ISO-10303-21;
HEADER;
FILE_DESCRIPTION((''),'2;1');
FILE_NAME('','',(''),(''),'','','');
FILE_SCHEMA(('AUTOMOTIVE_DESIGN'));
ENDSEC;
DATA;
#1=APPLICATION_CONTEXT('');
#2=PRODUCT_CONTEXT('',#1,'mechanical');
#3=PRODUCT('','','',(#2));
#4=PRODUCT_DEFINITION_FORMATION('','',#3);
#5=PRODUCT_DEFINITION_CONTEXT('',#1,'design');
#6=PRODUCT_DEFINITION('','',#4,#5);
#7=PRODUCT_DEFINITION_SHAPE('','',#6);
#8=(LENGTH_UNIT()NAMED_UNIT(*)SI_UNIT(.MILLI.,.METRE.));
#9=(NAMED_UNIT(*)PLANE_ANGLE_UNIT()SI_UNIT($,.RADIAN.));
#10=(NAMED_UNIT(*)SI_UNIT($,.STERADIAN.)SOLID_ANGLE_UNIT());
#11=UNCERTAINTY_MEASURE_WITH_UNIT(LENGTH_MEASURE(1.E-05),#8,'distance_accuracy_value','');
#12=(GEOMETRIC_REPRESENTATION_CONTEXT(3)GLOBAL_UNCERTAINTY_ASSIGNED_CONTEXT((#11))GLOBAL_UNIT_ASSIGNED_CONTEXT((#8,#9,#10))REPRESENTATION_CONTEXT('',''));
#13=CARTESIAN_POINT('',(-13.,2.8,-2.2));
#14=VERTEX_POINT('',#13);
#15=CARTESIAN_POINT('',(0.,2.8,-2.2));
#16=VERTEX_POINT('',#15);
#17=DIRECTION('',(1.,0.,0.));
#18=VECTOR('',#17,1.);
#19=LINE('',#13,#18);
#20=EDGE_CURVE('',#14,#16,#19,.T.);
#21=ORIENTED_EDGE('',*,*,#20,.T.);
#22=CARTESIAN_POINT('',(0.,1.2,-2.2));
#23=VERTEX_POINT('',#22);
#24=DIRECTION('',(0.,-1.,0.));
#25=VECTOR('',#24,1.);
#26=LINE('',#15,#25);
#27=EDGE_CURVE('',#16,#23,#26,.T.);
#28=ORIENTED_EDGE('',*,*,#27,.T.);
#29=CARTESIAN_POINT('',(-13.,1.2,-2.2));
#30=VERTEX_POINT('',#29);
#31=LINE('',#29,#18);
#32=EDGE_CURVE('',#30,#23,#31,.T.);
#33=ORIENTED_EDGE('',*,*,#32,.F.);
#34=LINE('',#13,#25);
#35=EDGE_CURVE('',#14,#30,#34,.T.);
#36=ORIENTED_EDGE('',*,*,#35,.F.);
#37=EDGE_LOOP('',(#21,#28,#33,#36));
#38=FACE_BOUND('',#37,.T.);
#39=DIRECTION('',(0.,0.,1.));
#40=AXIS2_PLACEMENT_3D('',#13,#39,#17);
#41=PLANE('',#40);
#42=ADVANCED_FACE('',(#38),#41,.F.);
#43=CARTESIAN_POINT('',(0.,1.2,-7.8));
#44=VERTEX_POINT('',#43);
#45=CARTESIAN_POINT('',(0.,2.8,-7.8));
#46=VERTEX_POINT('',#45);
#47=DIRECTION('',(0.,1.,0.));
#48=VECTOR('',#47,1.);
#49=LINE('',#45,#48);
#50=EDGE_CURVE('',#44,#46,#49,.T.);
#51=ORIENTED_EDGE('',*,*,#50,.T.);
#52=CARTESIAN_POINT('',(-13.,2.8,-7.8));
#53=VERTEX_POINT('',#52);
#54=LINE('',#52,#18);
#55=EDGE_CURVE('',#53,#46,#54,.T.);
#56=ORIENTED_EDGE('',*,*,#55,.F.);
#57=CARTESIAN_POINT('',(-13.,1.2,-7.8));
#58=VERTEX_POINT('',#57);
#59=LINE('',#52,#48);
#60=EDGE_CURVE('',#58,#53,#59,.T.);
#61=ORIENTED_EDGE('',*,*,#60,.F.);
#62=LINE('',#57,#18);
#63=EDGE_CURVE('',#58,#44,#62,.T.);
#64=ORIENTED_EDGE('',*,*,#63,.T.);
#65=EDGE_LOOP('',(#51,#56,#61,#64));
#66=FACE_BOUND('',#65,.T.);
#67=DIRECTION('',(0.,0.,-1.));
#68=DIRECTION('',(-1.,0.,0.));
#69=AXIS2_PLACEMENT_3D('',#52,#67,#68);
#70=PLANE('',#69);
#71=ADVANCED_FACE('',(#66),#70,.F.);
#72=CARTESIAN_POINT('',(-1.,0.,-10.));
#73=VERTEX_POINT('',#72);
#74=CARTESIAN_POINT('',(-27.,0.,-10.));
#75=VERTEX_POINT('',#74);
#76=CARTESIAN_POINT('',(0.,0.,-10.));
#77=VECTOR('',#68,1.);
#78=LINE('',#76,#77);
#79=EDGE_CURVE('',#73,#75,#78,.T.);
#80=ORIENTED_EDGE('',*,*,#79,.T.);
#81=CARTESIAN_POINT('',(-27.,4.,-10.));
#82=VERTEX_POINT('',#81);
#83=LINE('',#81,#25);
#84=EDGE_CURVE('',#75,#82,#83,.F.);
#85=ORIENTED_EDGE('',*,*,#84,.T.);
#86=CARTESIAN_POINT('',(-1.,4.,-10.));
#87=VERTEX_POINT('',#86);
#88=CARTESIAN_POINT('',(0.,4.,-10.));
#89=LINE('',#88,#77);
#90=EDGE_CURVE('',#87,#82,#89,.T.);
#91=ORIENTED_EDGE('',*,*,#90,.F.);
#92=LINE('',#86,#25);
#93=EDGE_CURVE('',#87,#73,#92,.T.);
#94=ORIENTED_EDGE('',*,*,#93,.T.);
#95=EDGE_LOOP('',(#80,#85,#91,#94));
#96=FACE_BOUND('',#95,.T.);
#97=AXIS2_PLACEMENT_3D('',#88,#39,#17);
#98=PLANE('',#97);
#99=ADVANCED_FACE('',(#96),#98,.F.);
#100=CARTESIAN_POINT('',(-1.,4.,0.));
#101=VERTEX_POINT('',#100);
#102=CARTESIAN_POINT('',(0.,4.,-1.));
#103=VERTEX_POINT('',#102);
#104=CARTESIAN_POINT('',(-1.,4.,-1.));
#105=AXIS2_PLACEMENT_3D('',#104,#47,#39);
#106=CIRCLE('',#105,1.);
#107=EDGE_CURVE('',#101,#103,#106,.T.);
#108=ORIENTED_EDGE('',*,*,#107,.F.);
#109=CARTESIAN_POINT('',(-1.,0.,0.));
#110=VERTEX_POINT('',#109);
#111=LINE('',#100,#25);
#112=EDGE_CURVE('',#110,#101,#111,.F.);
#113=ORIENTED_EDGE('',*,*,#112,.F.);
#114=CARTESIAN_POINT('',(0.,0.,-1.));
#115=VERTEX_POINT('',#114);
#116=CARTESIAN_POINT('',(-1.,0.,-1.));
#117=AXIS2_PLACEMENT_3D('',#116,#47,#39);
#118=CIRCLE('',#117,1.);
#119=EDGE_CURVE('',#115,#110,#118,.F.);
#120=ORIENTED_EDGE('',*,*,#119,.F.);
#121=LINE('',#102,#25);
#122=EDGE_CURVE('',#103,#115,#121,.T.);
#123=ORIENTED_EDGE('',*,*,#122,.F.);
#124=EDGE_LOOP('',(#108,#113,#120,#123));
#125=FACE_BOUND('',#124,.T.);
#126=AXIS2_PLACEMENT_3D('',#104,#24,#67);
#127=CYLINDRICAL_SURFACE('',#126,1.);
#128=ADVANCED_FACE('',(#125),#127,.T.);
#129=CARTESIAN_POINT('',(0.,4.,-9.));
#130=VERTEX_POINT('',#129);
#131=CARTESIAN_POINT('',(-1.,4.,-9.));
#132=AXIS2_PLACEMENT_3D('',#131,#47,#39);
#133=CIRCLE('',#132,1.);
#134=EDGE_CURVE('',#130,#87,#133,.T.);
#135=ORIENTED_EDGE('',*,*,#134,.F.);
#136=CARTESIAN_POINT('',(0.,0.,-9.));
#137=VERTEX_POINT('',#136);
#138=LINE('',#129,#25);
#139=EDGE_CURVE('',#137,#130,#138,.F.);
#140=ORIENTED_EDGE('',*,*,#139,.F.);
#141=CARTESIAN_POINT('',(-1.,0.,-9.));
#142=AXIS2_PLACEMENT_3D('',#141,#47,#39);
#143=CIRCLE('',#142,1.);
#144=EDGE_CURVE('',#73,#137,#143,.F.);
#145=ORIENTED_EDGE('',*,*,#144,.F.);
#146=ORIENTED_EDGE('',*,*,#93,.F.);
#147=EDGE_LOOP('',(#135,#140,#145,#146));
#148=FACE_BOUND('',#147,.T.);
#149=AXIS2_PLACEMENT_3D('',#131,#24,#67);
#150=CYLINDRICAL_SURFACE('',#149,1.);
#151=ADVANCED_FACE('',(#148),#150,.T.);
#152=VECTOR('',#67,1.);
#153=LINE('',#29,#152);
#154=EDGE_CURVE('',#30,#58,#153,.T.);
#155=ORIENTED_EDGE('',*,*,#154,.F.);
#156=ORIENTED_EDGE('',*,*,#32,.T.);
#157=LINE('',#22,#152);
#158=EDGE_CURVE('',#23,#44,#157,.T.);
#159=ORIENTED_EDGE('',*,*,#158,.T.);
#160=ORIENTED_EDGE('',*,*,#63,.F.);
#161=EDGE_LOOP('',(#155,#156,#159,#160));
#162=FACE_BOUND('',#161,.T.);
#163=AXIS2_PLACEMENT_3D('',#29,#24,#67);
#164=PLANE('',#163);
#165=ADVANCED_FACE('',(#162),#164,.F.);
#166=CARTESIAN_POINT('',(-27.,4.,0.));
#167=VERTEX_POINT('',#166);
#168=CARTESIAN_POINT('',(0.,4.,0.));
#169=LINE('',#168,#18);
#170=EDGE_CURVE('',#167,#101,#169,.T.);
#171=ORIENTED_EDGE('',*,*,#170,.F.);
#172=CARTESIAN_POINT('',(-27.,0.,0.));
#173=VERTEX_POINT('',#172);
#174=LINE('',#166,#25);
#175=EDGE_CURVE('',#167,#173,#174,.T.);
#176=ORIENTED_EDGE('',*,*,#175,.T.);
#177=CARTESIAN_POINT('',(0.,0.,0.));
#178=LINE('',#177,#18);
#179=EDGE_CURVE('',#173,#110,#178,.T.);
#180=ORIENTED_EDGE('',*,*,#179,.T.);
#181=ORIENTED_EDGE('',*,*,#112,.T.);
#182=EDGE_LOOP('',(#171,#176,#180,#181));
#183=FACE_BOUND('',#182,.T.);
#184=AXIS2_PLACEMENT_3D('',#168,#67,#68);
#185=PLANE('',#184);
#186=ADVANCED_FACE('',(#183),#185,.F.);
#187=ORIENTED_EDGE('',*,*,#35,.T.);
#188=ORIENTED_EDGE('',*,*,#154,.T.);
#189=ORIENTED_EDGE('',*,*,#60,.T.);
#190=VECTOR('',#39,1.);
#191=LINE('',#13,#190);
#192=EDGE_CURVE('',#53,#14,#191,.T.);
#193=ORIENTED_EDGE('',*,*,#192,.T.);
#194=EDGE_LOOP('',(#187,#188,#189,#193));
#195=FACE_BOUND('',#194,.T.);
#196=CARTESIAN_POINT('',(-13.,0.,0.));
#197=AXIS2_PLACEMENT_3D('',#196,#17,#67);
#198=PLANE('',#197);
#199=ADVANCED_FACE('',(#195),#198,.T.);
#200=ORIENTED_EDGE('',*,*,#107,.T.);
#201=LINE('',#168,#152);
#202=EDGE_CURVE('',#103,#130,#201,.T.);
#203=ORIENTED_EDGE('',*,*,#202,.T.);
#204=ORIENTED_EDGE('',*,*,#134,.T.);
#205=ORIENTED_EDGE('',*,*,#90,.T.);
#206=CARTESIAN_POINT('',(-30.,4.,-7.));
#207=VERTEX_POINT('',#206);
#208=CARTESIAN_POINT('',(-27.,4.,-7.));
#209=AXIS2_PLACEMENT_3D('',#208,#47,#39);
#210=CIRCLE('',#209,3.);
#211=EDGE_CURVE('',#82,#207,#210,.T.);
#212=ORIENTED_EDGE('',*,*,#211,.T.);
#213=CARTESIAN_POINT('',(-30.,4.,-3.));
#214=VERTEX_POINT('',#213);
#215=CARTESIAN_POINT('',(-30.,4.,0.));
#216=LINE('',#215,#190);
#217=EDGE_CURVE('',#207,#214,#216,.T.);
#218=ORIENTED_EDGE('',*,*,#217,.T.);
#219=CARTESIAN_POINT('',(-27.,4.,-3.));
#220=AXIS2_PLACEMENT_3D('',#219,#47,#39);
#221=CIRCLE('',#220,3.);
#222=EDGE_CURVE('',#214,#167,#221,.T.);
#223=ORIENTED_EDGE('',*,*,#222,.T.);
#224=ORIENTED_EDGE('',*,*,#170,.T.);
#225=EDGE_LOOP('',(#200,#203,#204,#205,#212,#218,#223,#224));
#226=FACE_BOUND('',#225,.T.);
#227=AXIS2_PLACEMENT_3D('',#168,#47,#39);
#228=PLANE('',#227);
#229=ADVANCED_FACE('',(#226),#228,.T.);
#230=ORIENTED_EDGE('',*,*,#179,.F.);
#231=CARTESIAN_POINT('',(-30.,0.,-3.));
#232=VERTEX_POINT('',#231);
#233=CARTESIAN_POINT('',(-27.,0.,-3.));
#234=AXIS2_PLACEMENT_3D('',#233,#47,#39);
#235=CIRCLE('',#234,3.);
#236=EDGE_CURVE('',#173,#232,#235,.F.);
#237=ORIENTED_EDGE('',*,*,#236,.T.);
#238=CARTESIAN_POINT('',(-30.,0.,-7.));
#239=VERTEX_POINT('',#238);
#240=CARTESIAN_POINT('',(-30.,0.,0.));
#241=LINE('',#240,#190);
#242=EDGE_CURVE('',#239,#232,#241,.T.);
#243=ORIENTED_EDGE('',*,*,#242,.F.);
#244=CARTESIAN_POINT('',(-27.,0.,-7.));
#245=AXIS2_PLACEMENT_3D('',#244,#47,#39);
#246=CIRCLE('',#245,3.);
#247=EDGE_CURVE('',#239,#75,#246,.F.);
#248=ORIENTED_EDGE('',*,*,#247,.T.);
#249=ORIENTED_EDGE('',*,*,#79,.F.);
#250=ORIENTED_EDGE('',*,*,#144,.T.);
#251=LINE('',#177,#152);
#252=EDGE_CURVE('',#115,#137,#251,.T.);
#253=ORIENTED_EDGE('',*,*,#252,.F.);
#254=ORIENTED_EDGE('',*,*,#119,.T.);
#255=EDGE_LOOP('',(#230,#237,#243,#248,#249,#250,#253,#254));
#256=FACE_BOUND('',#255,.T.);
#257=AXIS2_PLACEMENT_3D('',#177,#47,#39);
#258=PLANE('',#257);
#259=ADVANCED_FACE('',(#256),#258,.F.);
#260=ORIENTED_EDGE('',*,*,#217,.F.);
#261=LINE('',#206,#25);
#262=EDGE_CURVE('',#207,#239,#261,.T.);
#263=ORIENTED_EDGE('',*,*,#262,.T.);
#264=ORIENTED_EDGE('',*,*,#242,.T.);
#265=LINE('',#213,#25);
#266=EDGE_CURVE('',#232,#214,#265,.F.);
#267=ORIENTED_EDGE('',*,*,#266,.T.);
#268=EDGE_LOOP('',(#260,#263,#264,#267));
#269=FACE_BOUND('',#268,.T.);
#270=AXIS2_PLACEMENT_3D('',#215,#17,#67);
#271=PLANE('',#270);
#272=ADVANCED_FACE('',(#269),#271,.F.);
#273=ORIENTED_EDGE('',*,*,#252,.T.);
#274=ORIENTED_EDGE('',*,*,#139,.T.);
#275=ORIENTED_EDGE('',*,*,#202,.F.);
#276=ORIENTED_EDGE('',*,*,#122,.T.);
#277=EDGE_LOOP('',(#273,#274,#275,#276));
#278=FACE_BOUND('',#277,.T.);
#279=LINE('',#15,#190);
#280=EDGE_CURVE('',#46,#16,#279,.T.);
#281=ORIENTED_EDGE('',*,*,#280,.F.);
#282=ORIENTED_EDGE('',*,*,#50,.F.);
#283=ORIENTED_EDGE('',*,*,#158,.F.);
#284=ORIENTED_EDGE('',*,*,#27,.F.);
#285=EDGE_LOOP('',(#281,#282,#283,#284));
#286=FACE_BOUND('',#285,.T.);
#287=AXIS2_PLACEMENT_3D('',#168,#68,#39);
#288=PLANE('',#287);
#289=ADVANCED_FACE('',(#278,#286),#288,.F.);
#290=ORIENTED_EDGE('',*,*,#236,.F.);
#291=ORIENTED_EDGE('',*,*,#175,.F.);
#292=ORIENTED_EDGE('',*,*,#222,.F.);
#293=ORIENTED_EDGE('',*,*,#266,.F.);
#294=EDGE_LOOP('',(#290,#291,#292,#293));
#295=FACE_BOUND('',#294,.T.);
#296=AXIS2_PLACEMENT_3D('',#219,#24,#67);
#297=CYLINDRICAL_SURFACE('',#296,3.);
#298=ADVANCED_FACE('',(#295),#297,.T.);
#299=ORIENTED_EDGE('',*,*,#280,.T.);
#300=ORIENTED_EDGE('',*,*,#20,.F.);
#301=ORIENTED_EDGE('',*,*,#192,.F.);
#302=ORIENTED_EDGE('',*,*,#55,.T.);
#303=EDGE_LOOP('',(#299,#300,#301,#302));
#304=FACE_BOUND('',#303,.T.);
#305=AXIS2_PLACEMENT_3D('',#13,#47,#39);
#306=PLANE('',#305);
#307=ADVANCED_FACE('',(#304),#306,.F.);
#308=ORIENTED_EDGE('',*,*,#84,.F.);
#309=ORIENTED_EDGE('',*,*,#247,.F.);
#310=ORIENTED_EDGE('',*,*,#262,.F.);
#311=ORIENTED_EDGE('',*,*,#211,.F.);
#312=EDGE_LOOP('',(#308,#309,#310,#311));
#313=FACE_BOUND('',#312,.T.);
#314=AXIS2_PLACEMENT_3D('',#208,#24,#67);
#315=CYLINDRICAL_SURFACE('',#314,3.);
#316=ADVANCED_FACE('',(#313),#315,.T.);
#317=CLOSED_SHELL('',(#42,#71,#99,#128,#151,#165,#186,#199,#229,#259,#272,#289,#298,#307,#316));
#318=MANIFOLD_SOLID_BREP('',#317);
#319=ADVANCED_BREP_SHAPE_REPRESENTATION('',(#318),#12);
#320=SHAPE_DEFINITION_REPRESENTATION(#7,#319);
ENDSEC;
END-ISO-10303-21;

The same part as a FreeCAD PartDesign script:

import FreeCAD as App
import Part
import Sketcher
from FreeCAD import Vector
Q = App.Units.Quantity


def edges_at(feature, points):
    """Names of the edges that pass closest to the given points."""
    edges = feature.Shape.Edges
    near = lambda p: min(range(len(edges)), key=lambda i: edges[i].distToShape(Part.Vertex(*p))[0])
    return sorted({f"Edge{near(p) + 1}" for p in points})

doc = App.newDocument("Part")
body = doc.addObject("PartDesign::Body", "Body")

# Sketch on XZ plane
sketch1 = doc.addObject("Sketcher::SketchObject", "Sketch")
body.addObject(sketch1)
sketch1.AttachmentSupport = (doc.XZ_Plane, [""])
sketch1.MapMode = "FlatFace"
sketch1.addGeometry([
    Part.LineSegment(Vector(-30, -10, 0), Vector(-30, 0, 0)),
    Part.LineSegment(Vector(-30, 0, 0), Vector(0, 0, 0)),
    Part.LineSegment(Vector(0, 0, 0), Vector(0, -10, 0)),
    Part.LineSegment(Vector(0, -10, 0), Vector(-30, -10, 0)),
], False)
sketch1.addConstraint([
    Sketcher.Constraint("Coincident", 0, 2, 1, 1),
    Sketcher.Constraint("Coincident", 1, 2, 2, 1),
    Sketcher.Constraint("Coincident", 2, 2, 3, 1),
    Sketcher.Constraint("Coincident", 3, 2, 0, 1),
    Sketcher.Constraint("Vertical", 0),
    Sketcher.Constraint("Horizontal", 1),
    Sketcher.Constraint("Vertical", 2),
    Sketcher.Constraint("Horizontal", 3),
    Sketcher.Constraint("Coincident", 1, 2, -1, 1),
    Sketcher.Constraint("DistanceX", 1, 1, 1, 2, Q("30 mm")),
    Sketcher.Constraint("DistanceY", 0, 1, 0, 2, Q("10 mm")),
])
pad1 = doc.addObject("PartDesign::Pad", "Pad")
body.addObject(pad1)
pad1.Profile = sketch1
pad1.Length = 4
pad1.Reversed = True

# Sketch on YZ plane
sketch2 = doc.addObject("Sketcher::SketchObject", "Sketch001")
body.addObject(sketch2)
sketch2.AttachmentSupport = (doc.YZ_Plane, [""])
sketch2.MapMode = "FlatFace"
sketch2.addGeometry([
    Part.LineSegment(Vector(2.8, -2.2, 0), Vector(1.2, -2.2, 0)),
    Part.LineSegment(Vector(1.2, -2.2, 0), Vector(1.2, -7.8, 0)),
    Part.LineSegment(Vector(1.2, -7.8, 0), Vector(2.8, -7.8, 0)),
    Part.LineSegment(Vector(2.8, -7.8, 0), Vector(2.8, -2.2, 0)),
], False)
sketch2.addConstraint([
    Sketcher.Constraint("Coincident", 0, 2, 1, 1),
    Sketcher.Constraint("Coincident", 1, 2, 2, 1),
    Sketcher.Constraint("Coincident", 2, 2, 3, 1),
    Sketcher.Constraint("Coincident", 3, 2, 0, 1),
    Sketcher.Constraint("Horizontal", 0),
    Sketcher.Constraint("Vertical", 1),
    Sketcher.Constraint("Horizontal", 2),
    Sketcher.Constraint("Vertical", 3),
    Sketcher.Constraint("DistanceX", 0, 2, 0, 1, Q("1.6 mm")),
    Sketcher.Constraint("DistanceY", 1, 2, 1, 1, Q("5.6 mm")),
    Sketcher.Constraint("DistanceX", -1, 1, 0, 2, Q("1.2 mm")),
    Sketcher.Constraint("DistanceY", 0, 2, -1, 1, Q("2.2 mm")),
])
pocket1 = doc.addObject("PartDesign::Pocket", "Pocket")
body.addObject(pocket1)
pocket1.Profile = sketch2
pocket1.Length = 13
doc.recompute()

fillet = doc.addObject("PartDesign::Fillet", "Fillet")
body.addObject(fillet)
fillet.Base = (pocket1, edges_at(pocket1, [(-30, 2, 0), (-30, 2, -10)]))
fillet.Radius = 3
doc.recompute()

fillet2 = doc.addObject("PartDesign::Fillet", "Fillet001")
body.addObject(fillet2)
fillet2.Base = (fillet, edges_at(fillet, [(0, 2, 0), (0, 2, -10)]))
fillet2.Radius = 1

doc.recompute()
